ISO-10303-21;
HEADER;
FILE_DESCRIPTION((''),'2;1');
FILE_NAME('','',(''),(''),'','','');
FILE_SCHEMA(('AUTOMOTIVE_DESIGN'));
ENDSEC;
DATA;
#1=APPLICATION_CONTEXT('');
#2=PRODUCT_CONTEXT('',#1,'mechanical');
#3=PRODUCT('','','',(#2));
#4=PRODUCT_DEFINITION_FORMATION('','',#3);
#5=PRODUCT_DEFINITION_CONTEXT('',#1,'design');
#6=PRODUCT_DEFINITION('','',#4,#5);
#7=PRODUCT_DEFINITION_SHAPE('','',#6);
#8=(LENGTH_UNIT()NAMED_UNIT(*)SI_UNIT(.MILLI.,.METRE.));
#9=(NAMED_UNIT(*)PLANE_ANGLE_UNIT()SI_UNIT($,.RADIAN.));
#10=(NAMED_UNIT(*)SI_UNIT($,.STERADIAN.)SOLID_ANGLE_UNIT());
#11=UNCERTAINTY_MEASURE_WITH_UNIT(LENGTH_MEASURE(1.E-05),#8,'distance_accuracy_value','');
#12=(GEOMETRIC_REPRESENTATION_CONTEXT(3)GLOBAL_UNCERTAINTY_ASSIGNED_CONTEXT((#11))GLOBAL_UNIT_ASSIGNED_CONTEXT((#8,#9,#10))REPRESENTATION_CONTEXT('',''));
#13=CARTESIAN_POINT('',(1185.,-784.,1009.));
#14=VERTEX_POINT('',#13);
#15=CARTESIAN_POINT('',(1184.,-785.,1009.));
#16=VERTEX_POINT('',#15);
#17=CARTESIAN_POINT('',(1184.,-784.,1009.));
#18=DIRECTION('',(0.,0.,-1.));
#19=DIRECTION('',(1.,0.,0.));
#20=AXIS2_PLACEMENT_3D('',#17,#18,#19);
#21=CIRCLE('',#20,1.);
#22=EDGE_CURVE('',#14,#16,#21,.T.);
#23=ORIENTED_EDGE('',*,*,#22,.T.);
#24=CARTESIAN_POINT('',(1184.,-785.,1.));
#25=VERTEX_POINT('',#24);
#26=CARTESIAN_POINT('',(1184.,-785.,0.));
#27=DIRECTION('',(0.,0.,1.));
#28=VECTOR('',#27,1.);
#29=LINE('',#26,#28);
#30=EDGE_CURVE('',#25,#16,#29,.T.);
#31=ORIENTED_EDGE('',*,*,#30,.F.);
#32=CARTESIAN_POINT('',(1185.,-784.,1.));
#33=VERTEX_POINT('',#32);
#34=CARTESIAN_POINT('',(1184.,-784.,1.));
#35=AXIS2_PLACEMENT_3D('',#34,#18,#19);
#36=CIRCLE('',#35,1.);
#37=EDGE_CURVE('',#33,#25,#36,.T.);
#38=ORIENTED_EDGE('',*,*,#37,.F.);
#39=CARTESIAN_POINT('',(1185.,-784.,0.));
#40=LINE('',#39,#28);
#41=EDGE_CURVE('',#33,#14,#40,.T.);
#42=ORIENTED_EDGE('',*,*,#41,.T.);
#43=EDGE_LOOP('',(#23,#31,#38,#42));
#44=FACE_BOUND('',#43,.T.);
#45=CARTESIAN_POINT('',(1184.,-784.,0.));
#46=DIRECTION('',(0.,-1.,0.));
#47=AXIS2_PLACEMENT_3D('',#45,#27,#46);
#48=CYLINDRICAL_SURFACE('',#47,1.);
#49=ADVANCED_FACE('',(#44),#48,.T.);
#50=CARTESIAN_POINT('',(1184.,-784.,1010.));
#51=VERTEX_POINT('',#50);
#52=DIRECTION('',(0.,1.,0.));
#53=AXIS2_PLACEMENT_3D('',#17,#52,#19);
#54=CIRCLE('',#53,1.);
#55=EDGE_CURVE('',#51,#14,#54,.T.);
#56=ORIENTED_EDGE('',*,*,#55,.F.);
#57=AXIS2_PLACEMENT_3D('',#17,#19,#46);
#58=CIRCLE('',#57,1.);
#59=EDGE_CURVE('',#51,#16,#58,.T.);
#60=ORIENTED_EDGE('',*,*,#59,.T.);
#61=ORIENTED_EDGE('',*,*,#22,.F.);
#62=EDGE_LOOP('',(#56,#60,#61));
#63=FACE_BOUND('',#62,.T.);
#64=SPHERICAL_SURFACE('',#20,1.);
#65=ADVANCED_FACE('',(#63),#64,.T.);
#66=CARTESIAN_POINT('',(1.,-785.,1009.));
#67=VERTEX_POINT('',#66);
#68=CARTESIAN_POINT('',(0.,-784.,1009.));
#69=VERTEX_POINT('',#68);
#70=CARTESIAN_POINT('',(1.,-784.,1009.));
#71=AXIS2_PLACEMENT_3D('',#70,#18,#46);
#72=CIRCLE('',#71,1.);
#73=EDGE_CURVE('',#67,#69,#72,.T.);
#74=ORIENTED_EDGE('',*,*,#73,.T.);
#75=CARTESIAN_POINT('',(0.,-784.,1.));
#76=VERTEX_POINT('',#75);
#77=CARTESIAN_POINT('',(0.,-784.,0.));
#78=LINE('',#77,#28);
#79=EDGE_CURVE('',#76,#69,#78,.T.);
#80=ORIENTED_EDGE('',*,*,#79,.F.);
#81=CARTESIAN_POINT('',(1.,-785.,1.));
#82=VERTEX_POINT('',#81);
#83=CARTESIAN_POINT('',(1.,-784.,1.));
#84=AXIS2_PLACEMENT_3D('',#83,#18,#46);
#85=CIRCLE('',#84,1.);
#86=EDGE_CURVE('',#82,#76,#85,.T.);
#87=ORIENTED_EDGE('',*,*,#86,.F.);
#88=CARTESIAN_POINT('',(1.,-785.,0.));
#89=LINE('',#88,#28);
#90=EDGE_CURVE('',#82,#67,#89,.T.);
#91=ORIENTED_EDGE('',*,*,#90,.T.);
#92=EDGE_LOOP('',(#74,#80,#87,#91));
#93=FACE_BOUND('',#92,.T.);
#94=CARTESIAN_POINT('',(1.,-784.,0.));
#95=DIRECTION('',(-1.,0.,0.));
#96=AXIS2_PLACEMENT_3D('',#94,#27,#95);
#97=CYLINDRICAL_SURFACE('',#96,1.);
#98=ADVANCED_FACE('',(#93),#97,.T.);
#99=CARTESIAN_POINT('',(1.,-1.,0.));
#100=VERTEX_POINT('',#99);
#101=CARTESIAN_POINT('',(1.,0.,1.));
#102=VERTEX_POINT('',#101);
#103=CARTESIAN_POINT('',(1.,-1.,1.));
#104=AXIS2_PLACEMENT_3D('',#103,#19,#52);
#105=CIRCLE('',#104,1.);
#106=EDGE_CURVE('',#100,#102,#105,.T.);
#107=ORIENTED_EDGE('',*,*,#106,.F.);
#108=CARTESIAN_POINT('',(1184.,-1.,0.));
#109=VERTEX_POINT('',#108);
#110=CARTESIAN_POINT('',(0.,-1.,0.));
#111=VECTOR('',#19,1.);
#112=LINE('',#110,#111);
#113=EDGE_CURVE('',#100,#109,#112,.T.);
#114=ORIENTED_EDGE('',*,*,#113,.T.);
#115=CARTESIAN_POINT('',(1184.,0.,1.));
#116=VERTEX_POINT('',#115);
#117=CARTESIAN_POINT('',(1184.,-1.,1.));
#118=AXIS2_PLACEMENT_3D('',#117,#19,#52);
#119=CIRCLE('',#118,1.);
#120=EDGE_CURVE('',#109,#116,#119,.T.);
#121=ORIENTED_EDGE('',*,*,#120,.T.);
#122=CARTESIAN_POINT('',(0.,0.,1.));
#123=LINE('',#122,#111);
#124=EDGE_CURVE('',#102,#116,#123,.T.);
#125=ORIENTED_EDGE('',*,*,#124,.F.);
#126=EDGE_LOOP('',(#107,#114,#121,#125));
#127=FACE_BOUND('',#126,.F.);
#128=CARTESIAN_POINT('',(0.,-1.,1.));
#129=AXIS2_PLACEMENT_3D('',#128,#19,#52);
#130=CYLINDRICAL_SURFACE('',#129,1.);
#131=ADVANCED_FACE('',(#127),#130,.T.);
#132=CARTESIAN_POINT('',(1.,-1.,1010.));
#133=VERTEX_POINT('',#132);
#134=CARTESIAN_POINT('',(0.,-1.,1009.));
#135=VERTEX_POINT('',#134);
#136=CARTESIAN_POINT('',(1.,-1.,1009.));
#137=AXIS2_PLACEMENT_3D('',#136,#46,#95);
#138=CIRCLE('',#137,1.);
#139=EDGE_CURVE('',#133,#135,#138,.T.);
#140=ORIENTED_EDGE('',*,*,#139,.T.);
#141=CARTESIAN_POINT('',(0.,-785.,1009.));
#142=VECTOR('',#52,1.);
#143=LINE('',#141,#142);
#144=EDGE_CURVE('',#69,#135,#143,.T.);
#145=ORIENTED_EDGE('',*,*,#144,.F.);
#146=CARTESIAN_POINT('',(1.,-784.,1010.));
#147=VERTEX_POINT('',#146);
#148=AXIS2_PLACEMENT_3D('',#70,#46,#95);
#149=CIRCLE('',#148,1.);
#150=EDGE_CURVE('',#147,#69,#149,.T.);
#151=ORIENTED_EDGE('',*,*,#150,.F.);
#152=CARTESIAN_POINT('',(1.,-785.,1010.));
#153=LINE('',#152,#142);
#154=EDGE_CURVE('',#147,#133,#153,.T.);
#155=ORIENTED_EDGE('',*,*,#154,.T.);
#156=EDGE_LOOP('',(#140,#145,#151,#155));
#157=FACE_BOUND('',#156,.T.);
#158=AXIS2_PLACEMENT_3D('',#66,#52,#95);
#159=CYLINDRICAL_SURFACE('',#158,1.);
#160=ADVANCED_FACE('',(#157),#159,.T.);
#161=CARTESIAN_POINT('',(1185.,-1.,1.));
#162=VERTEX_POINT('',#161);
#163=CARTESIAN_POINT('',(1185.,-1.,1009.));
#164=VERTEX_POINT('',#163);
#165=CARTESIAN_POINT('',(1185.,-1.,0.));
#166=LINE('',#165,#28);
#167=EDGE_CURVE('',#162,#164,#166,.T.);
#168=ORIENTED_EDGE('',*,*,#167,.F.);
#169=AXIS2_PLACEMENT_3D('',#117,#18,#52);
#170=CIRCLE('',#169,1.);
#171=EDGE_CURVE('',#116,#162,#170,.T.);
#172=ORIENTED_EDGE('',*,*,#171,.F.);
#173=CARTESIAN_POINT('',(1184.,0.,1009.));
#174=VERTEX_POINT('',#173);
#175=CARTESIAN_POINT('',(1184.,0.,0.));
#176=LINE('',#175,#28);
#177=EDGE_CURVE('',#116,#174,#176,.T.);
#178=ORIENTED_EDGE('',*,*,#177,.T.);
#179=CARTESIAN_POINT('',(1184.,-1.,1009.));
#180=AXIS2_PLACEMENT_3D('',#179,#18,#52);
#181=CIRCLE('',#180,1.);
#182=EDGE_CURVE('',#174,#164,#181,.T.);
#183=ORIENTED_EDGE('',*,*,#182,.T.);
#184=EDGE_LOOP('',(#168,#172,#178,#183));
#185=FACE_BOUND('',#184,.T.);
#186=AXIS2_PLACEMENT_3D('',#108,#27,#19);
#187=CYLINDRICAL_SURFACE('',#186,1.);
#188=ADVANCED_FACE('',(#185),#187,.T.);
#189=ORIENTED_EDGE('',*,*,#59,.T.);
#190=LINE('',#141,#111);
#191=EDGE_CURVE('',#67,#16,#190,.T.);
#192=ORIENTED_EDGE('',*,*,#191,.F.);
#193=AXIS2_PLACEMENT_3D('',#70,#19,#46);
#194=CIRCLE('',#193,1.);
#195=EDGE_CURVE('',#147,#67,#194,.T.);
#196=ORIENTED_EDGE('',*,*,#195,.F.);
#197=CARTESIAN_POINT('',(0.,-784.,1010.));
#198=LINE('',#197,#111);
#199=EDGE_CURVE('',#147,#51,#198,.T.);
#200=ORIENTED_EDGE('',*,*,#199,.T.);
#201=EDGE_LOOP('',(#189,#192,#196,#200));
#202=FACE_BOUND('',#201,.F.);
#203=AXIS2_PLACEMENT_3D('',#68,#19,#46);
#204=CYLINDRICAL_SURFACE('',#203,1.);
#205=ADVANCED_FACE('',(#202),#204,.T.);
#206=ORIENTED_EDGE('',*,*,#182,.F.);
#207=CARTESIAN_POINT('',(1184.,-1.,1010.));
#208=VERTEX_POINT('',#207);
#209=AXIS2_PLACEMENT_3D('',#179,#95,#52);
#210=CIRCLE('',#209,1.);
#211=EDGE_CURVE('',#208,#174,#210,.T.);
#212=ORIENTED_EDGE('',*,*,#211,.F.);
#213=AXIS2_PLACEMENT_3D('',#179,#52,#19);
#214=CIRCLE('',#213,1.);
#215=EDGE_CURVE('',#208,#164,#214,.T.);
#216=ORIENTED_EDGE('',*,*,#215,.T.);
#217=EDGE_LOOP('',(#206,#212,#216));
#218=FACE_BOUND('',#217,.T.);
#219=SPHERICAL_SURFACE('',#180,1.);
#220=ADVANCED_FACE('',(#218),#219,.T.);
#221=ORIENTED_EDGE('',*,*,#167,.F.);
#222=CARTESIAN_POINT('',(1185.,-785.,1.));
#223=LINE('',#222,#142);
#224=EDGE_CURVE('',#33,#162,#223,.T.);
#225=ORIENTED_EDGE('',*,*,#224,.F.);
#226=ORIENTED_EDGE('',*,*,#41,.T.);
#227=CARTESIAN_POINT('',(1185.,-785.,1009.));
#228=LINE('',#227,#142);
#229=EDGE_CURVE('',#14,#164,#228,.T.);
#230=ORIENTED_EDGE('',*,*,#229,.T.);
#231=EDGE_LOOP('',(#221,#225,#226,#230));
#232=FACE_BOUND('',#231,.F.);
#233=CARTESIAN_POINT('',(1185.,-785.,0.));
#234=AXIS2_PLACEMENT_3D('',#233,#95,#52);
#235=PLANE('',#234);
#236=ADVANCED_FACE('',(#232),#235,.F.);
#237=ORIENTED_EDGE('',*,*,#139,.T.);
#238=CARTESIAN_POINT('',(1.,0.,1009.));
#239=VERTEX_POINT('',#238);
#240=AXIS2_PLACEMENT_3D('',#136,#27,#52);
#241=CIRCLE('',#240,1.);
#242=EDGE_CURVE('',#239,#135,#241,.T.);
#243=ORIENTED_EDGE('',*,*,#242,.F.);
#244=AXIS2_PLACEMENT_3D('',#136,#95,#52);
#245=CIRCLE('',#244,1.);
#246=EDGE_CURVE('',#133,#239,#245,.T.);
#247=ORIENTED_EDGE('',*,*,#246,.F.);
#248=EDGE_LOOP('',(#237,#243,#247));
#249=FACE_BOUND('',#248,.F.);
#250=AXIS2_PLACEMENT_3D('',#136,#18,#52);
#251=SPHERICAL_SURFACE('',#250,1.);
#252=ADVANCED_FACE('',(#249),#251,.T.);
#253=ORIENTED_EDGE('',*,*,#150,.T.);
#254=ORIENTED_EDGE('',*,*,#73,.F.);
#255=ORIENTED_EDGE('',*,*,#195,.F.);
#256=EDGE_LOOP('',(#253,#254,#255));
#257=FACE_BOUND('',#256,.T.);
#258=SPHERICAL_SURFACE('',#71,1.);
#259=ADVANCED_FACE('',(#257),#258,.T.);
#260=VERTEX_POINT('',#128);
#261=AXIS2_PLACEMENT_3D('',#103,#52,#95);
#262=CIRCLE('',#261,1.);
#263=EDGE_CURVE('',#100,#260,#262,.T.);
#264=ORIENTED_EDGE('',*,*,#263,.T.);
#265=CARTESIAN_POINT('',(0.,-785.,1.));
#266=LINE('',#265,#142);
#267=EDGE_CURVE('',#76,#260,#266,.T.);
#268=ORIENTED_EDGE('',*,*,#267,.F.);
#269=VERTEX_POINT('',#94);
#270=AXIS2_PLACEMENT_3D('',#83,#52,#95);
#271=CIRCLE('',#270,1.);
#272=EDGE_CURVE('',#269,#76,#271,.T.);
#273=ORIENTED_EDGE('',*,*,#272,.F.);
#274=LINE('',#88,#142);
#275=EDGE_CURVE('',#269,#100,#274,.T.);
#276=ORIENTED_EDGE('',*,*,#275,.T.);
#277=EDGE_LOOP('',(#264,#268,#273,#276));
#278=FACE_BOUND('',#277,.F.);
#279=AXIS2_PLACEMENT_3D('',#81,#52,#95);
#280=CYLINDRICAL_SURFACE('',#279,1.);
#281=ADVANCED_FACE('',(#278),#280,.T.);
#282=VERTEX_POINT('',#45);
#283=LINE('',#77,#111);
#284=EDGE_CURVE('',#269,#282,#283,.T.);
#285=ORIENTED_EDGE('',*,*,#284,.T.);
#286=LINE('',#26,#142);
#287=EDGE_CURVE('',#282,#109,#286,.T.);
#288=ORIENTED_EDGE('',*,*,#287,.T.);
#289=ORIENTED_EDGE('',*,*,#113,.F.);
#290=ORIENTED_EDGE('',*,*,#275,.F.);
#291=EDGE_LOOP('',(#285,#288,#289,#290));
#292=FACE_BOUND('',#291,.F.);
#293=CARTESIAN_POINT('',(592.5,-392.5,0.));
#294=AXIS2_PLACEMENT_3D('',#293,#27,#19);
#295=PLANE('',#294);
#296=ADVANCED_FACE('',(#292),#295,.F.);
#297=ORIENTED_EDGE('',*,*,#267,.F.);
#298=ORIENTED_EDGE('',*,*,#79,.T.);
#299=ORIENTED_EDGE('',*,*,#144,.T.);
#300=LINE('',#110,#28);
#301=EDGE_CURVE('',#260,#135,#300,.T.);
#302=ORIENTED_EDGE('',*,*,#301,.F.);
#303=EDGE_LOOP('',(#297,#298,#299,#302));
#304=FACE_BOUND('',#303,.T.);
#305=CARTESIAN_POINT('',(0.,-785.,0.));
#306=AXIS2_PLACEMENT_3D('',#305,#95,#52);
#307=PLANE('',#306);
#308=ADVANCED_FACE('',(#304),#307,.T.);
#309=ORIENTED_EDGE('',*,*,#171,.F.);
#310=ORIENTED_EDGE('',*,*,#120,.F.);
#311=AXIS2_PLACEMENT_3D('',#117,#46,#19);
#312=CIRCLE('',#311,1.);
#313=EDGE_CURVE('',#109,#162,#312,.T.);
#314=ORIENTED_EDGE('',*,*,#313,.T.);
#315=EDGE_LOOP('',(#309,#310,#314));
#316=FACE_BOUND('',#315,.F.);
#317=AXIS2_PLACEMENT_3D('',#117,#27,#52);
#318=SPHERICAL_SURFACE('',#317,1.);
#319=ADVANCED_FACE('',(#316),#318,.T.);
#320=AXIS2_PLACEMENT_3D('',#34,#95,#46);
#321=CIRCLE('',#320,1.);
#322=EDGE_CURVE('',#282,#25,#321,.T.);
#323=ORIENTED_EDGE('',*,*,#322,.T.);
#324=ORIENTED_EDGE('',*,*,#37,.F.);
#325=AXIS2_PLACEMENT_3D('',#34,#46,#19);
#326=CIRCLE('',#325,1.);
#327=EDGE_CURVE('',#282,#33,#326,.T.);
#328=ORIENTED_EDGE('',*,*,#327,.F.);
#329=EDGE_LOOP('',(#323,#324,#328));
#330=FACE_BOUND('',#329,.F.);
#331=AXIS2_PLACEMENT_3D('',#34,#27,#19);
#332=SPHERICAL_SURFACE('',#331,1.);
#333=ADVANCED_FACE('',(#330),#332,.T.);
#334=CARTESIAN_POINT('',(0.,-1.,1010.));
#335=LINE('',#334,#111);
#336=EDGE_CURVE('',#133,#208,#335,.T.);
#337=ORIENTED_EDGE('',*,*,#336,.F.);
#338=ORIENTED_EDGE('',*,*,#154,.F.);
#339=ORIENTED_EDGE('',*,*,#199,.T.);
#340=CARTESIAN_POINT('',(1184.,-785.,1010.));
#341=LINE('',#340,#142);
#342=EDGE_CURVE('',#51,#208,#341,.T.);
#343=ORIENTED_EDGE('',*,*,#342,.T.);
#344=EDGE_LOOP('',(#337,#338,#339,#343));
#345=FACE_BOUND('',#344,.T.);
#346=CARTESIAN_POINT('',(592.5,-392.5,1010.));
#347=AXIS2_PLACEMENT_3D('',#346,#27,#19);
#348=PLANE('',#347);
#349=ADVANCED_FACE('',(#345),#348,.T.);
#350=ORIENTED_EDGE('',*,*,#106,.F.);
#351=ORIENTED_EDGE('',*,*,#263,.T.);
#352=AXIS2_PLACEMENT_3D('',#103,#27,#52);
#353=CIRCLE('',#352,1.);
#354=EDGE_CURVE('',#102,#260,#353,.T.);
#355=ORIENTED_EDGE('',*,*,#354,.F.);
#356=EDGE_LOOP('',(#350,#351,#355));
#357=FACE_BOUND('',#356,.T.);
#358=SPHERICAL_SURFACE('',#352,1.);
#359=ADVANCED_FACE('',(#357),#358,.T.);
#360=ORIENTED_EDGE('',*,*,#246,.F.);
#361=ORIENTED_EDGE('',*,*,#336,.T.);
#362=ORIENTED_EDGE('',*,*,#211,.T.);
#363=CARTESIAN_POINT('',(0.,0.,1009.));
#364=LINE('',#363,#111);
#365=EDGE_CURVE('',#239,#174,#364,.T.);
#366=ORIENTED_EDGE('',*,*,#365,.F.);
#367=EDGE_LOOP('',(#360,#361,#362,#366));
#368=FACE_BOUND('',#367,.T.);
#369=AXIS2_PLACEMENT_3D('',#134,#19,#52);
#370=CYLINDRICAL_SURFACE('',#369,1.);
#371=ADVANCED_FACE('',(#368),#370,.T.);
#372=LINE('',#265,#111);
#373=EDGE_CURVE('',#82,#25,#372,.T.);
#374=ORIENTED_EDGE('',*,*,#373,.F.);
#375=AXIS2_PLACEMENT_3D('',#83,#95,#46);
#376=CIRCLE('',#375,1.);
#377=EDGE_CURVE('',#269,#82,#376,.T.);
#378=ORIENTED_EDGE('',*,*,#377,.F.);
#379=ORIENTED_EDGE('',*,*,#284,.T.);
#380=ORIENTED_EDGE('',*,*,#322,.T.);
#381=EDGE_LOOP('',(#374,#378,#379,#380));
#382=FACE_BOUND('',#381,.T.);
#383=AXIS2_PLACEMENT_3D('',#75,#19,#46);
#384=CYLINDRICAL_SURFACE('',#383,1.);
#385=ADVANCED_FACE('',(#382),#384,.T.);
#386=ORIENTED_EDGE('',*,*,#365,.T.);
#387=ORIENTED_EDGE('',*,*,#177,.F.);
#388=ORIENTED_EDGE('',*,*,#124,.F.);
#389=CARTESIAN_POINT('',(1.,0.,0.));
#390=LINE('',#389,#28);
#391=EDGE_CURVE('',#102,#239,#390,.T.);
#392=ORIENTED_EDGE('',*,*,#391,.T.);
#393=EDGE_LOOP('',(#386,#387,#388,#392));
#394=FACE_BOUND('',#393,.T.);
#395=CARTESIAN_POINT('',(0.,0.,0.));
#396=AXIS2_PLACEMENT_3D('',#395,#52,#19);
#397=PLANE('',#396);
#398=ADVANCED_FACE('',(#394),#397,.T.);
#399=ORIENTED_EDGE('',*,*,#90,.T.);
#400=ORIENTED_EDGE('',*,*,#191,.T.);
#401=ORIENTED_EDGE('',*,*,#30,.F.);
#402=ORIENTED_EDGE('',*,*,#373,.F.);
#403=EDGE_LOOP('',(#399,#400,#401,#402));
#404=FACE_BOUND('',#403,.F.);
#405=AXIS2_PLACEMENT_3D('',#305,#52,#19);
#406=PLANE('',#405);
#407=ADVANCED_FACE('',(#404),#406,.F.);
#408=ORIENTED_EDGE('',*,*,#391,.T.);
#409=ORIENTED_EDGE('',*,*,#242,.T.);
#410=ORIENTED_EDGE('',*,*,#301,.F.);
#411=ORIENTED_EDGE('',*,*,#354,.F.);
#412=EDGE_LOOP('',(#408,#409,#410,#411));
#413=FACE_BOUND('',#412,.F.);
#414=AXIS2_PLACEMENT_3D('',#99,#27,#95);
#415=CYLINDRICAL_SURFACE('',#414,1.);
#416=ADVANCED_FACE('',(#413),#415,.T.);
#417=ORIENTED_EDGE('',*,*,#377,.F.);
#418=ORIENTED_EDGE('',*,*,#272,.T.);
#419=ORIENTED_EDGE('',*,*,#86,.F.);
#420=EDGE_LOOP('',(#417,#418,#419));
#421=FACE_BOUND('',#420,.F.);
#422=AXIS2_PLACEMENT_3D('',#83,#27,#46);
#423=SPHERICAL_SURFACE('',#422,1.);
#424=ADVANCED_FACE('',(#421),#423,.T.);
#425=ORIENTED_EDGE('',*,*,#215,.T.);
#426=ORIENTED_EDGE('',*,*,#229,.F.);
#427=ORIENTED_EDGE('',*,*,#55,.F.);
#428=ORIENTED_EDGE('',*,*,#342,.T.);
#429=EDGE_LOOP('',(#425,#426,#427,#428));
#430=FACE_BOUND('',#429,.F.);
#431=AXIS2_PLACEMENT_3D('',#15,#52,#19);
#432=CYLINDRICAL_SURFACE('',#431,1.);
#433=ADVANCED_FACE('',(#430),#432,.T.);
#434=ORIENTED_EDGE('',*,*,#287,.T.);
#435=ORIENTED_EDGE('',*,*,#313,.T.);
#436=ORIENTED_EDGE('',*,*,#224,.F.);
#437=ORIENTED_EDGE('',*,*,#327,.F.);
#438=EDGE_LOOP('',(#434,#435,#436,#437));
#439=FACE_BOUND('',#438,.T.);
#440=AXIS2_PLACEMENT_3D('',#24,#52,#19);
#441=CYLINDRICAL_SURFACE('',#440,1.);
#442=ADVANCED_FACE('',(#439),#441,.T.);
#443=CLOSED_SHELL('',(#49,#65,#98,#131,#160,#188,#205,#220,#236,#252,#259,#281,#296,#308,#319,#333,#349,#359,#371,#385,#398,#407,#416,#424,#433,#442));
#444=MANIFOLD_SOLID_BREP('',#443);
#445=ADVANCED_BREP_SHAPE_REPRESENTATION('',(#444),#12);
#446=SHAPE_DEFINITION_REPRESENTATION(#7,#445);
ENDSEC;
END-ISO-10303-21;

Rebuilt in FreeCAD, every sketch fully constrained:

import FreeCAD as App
import Part
import Sketcher
Q = App.Units.Quantity

doc = App.newDocument("Part")
params = doc.addObject("Spreadsheet::Sheet", "Params")
for row, (alias, value) in enumerate([
    ("sketch1_width", "1185 mm"),
    ("sketch1_height", "785 mm"),
    ("pad1_length", "1010 mm"),
    ("fillet_radius", "1 mm"),
], start=1):
    params.set(f"A{row}", alias)
    params.set(f"B{row}", "=" + value)
    params.setAlias(f"B{row}", alias)

body = doc.addObject("PartDesign::Body", "Body")

# Sketch on XY plane
sketch1 = body.newObject("Sketcher::SketchObject", "Sketch")
sketch1.AttachmentSupport = (doc.getObject("XY_Plane"), [""])
sketch1.MapMode = "FlatFace"
sketch1.addGeometry(Part.LineSegment(App.Vector(0, 0, 0), App.Vector(0, -785, 0)), False)
sketch1.addGeometry(Part.LineSegment(App.Vector(0, -785, 0), App.Vector(1185, -785, 0)), False)
sketch1.addGeometry(Part.LineSegment(App.Vector(1185, -785, 0), App.Vector(1185, 0, 0)), False)
sketch1.addGeometry(Part.LineSegment(App.Vector(1185, 0, 0), App.Vector(0, 0, 0)), False)
sketch1.addConstraint(Sketcher.Constraint("Coincident", 0, 2, 1, 1))
sketch1.addConstraint(Sketcher.Constraint("Coincident", 1, 2, 2, 1))
sketch1.addConstraint(Sketcher.Constraint("Coincident", 2, 2, 3, 1))
sketch1.addConstraint(Sketcher.Constraint("Coincident", 3, 2, 0, 1))
sketch1.addConstraint(Sketcher.Constraint("Vertical", 0))
sketch1.addConstraint(Sketcher.Constraint("Horizontal", 1))
sketch1.addConstraint(Sketcher.Constraint("Vertical", 2))
sketch1.addConstraint(Sketcher.Constraint("Horizontal", 3))
sketch1.addConstraint(Sketcher.Constraint("Coincident", 3, 2, -1, 1))
sketch1.addConstraint(Sketcher.Constraint("DistanceX", 1, 1, 1, 2, Q("1185 mm")))
sketch1.addConstraint(Sketcher.Constraint("DistanceY", 0, 2, 0, 1, Q("785 mm")))
sketch1.setExpression("Constraints[9]", "Params.sketch1_width")
sketch1.setExpression("Constraints[10]", "Params.sketch1_height")
pad1 = body.newObject("PartDesign::Pad", "Pad")
pad1.Profile = sketch1
pad1.setExpression("Length", "Params.pad1_length")
doc.recompute()

fillet = body.newObject("PartDesign::Fillet", "Fillet")
fillet.Base = (pad1, ["Edge1"])
fillet.UseAllEdges = True
fillet.setExpression("Radius", "Params.fillet_radius")

doc.recompute()
